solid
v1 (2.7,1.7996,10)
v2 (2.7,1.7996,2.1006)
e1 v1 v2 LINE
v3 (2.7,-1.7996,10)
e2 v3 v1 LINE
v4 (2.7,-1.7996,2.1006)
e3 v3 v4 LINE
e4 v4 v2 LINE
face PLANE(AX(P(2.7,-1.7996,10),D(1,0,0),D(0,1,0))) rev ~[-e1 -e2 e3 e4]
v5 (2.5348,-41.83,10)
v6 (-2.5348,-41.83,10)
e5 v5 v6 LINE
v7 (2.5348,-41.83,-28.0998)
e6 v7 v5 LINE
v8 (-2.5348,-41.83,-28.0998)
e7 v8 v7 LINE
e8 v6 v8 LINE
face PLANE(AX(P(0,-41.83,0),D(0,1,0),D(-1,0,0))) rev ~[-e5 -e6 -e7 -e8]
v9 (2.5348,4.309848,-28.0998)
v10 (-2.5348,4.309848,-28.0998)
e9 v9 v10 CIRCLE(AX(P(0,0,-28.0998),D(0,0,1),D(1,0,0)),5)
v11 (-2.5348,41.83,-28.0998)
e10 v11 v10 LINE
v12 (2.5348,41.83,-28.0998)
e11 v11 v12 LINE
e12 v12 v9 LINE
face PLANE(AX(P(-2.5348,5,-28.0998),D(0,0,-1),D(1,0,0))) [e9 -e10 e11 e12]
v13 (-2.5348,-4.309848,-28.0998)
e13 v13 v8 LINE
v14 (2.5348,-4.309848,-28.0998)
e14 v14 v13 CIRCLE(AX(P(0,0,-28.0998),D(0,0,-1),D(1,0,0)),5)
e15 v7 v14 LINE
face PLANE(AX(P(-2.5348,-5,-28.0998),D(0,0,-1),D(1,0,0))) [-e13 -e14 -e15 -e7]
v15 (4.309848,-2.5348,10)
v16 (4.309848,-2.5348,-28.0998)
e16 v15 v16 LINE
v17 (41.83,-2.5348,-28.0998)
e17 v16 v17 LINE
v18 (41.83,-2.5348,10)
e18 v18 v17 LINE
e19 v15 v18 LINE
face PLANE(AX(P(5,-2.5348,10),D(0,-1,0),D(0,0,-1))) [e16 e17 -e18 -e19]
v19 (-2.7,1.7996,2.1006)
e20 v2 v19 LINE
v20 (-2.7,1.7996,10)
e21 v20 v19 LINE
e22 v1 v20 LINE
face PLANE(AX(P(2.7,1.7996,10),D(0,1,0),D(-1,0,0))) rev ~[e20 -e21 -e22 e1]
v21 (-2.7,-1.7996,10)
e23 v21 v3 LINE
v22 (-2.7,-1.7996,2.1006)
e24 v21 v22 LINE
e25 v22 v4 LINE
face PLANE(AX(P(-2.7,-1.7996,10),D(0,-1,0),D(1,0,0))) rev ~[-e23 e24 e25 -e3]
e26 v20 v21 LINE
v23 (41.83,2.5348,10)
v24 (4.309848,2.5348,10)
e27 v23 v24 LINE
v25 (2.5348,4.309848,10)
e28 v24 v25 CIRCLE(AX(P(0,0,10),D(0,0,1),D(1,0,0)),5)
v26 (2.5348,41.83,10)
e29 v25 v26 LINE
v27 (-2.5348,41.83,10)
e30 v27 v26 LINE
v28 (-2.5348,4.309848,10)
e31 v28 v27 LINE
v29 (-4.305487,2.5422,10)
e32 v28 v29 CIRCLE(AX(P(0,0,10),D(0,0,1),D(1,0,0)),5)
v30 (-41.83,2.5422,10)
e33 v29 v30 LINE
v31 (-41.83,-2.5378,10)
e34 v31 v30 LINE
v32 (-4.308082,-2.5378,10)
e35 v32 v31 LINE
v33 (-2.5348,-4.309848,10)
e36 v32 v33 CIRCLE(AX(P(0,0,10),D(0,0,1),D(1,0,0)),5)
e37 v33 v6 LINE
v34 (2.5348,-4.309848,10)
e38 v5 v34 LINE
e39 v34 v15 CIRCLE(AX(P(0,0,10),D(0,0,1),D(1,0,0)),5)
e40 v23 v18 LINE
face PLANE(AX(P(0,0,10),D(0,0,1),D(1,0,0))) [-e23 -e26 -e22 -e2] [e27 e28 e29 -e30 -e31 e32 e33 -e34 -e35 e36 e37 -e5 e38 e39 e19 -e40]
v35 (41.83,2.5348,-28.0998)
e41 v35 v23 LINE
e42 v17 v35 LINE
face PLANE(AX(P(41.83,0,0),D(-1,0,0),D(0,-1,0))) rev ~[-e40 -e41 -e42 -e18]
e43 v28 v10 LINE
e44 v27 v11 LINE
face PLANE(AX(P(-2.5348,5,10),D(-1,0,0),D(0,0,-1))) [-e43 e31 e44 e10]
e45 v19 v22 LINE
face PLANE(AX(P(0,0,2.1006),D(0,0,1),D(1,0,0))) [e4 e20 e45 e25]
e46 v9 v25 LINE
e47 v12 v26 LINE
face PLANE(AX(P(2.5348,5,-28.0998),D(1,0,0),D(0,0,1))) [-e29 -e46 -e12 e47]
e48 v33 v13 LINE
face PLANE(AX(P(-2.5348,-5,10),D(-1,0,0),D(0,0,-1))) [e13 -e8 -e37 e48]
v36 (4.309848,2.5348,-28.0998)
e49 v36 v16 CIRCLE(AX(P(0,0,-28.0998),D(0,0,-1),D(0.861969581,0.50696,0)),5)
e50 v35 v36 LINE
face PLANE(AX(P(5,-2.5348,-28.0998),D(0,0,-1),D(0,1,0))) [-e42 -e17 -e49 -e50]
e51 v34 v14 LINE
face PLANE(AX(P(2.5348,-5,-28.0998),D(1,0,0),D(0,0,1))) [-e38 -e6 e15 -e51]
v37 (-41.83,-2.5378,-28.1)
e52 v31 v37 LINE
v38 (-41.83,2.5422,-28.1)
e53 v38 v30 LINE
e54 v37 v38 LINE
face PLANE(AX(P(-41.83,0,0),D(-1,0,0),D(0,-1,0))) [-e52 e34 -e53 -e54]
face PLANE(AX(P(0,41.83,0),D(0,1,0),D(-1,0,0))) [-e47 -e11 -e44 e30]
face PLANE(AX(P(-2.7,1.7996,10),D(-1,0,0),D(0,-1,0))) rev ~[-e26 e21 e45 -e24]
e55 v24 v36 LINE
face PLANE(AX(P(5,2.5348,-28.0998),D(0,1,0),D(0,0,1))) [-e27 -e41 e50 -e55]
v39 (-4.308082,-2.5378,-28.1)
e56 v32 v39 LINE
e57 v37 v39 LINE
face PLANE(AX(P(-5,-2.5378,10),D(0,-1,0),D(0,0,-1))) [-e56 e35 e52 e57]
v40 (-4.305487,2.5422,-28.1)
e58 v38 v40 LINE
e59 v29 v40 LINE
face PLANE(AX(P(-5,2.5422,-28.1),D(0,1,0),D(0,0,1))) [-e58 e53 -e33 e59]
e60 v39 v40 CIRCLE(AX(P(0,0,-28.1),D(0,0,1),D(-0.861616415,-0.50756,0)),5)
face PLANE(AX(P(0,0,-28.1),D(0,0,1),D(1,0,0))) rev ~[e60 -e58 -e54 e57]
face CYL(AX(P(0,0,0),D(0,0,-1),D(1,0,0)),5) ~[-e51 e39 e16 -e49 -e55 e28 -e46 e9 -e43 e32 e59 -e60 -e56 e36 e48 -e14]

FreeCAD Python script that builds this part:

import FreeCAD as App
import Part
import Sketcher

V = App.Vector
Q = App.Units.Quantity

doc = App.newDocument("Part")
body = doc.addObject("PartDesign::Body", "Body")

sketch1 = body.newObject("Sketcher::SketchObject", "Sketch")
sketch1.AttachmentSupport = (doc.getObject("XY_Plane"), [""])
sketch1.MapMode = "FlatFace"
sketch1.addGeometry(Part.Circle(V(0, 0, 0), V(0, 0, 1), 5), False)
sketch1.addConstraint(Sketcher.Constraint("Coincident", 0, 3, -1, 1))
sketch1.addConstraint(Sketcher.Constraint("Diameter", 0, Q("0.3937 in")))
pad1 = body.newObject("PartDesign::Pad", "Pad")
pad1.Profile = sketch1
pad1.Type = "TwoLengths"
pad1.Length = Q("0.3937008 in")
pad1.Length2 = Q("1.1062992 in")

sketch2 = body.newObject("Sketcher::SketchObject", "Sketch001")
sketch2.AttachmentSupport = (doc.getObject("XY_Plane"), [""])
sketch2.MapMode = "FlatFace"
sketch2.AttachmentOffset = App.Placement(V(0, 0, 0.3937008 * 25.4), App.Rotation())
sketch2.addGeometry(Part.LineSegment(V(-2.7, 1.8, 0), V(-2.7, -1.8, 0)), False)
sketch2.addGeometry(Part.LineSegment(V(-2.7, -1.8, 0), V(2.7, -1.8, 0)), False)
sketch2.addGeometry(Part.LineSegment(V(2.7, -1.8, 0), V(2.7, 1.8, 0)), False)
sketch2.addGeometry(Part.LineSegment(V(2.7, 1.8, 0), V(-2.7, 1.8, 0)), False)
sketch2.addConstraint(Sketcher.Constraint("Coincident", 0, 2, 1, 1))
sketch2.addConstraint(Sketcher.Constraint("Coincident", 1, 2, 2, 1))
sketch2.addConstraint(Sketcher.Constraint("Coincident", 2, 2, 3, 1))
sketch2.addConstraint(Sketcher.Constraint("Coincident", 3, 2, 0, 1))
sketch2.addConstraint(Sketcher.Constraint("Vertical", 0))
sketch2.addConstraint(Sketcher.Constraint("Horizontal", 1))
sketch2.addConstraint(Sketcher.Constraint("Vertical", 2))
sketch2.addConstraint(Sketcher.Constraint("Horizontal", 3))
sketch2.addConstraint(Sketcher.Constraint("Symmetric", 0, 2, 2, 2, -1, 1))
sketch2.addConstraint(Sketcher.Constraint("DistanceX", 1, 1, 1, 2, Q("0.2126 in")))
sketch2.addConstraint(Sketcher.Constraint("DistanceY", 0, 2, 0, 1, Q("0.1417 in")))
pocket1 = body.newObject("PartDesign::Pocket", "Pocket")
pocket1.Profile = sketch2
pocket1.Length = Q("0.311 in")

sketch3 = body.newObject("Sketcher::SketchObject", "Sketch002")
sketch3.AttachmentSupport = (doc.getObject("XZ_Plane"), [""])
sketch3.MapMode = "FlatFace"
sketch3.AttachmentOffset = App.Placement(V(0, 0, -5), App.Rotation())
sketch3.addGeometry(Part.LineSegment(V(-3, -28, 0), V(-3, 10, 0)), False)
sketch3.addGeometry(Part.LineSegment(V(-3, 10, 0), V(3, 10, 0)), False)
sketch3.addGeometry(Part.LineSegment(V(3, 10, 0), V(3, -28, 0)), False)
sketch3.addGeometry(Part.LineSegment(V(3, -28, 0), V(-3, -28, 0)), False)
sketch3.addConstraint(Sketcher.Constraint("Coincident", 0, 2, 1, 1))
sketch3.addConstraint(Sketcher.Constraint("Coincident", 1, 2, 2, 1))
sketch3.addConstraint(Sketcher.Constraint("Coincident", 2, 2, 3, 1))
sketch3.addConstraint(Sketcher.Constraint("Coincident", 3, 2, 0, 1))
sketch3.addConstraint(Sketcher.Constraint("Vertical", 0))
sketch3.addConstraint(Sketcher.Constraint("Horizontal", 1))
sketch3.addConstraint(Sketcher.Constraint("Vertical", 2))
sketch3.addConstraint(Sketcher.Constraint("Horizontal", 3))
sketch3.addConstraint(Sketcher.Constraint("DistanceY", 0, 1, 0, 2, Q("1.5 in")))
sketch3.addConstraint(Sketcher.Constraint("DistanceX", 1, 1, 1, 2, Q("0.1996 in")))
sketch3.addConstraint(Sketcher.Constraint("DistanceX", 0, 2, -1, 1, Q("0.0998 in")))
sketch3.addConstraint(Sketcher.Constraint("DistanceY", -1, 1, 0, 2, Q("0.3937 in")))
pad2 = body.newObject("PartDesign::Pad", "Pad001")
pad2.Profile = sketch3
pad2.Type = "TwoLengths"
pad2.Length = Q("1.45 in")
pad2.Length2 = Q("0.05 in")
pad2.Reversed = True

sketch4 = body.newObject("Sketcher::SketchObject", "Sketch003")
sketch4.AttachmentSupport = (doc.getObject("YZ_Plane"), [""])
sketch4.MapMode = "FlatFace"
sketch4.AttachmentOffset = App.Placement(V(0, 0, 5), App.Rotation())
sketch4.addGeometry(Part.LineSegment(V(-3, 10, 0), V(3, 10, 0)), False)
sketch4.addGeometry(Part.LineSegment(V(3, 10, 0), V(3, -28, 0)), False)
sketch4.addGeometry(Part.LineSegment(V(3, -28, 0), V(-3, -28, 0)), False)
sketch4.addGeometry(Part.LineSegment(V(-3, -28, 0), V(-3, 10, 0)), False)
sketch4.addConstraint(Sketcher.Constraint("Coincident", 0, 2, 1, 1))
sketch4.addConstraint(Sketcher.Constraint("Coincident", 1, 2, 2, 1))
sketch4.addConstraint(Sketcher.Constraint("Coincident", 2, 2, 3, 1))
sketch4.addConstraint(Sketcher.Constraint("Coincident", 3, 2, 0, 1))
sketch4.addConstraint(Sketcher.Constraint("Horizontal", 0))
sketch4.addConstraint(Sketcher.Constraint("Vertical", 1))
sketch4.addConstraint(Sketcher.Constraint("Horizontal", 2))
sketch4.addConstraint(Sketcher.Constraint("Vertical", 3))
sketch4.addConstraint(Sketcher.Constraint("DistanceY", 1, 2, 1, 1, Q("1.5 in")))
sketch4.addConstraint(Sketcher.Constraint("DistanceX", 0, 1, 0, 2, Q("0.1996 in")))
sketch4.addConstraint(Sketcher.Constraint("DistanceX", -1, 1, 0, 2, Q("0.0998 in")))
sketch4.addConstraint(Sketcher.Constraint("DistanceY", -1, 1, 0, 2, Q("0.3937 in")))
pad3 = body.newObject("PartDesign::Pad", "Pad002")
pad3.Profile = sketch4
pad3.Type = "TwoLengths"
pad3.Length = Q("0.05 in")
pad3.Length2 = Q("1.45 in")
pad3.Reversed = True

sketch5 = body.newObject("Sketcher::SketchObject", "Sketch004")
sketch5.AttachmentSupport = (doc.getObject("YZ_Plane"), [""])
sketch5.MapMode = "FlatFace"
sketch5.AttachmentOffset = App.Placement(V(0, 0, -5), App.Rotation())
sketch5.addGeometry(Part.LineSegment(V(-3, -28, 0), V(-3, 10, 0)), False)
sketch5.addGeometry(Part.LineSegment(V(-3, 10, 0), V(3, 10, 0)), False)
sketch5.addGeometry(Part.LineSegment(V(3, 10, 0), V(3, -28, 0)), False)
sketch5.addGeometry(Part.LineSegment(V(3, -28, 0), V(-3, -28, 0)), False)
sketch5.addConstraint(Sketcher.Constraint("Coincident", 0, 2, 1, 1))
sketch5.addConstraint(Sketcher.Constraint("Coincident", 1, 2, 2, 1))
sketch5.addConstraint(Sketcher.Constraint("Coincident", 2, 2, 3, 1))
sketch5.addConstraint(Sketcher.Constraint("Coincident", 3, 2, 0, 1))
sketch5.addConstraint(Sketcher.Constraint("Vertical", 0))
sketch5.addConstraint(Sketcher.Constraint("Horizontal", 1))
sketch5.addConstraint(Sketcher.Constraint("Vertical", 2))
sketch5.addConstraint(Sketcher.Constraint("Horizontal", 3))
sketch5.addConstraint(Sketcher.Constraint("DistanceX", 1, 1, 1, 2, Q("0.2 in")))
sketch5.addConstraint(Sketcher.Constraint("DistanceY", 0, 1, 0, 2, Q("1.5 in")))
sketch5.addConstraint(Sketcher.Constraint("DistanceY", -1, 1, 0, 2, Q("0.3937 in")))
sketch5.addConstraint(Sketcher.Constraint("DistanceX", 0, 2, -1, 1, Q("2.5378 mm")))
pad4 = body.newObject("PartDesign::Pad", "Pad003")
pad4.Profile = sketch5
pad4.Type = "TwoLengths"
pad4.Length = Q("1.45 in")
pad4.Length2 = Q("0.05 in")
pad4.Reversed = True

sketch6 = body.newObject("Sketcher::SketchObject", "Sketch005")
sketch6.AttachmentSupport = (doc.getObject("XZ_Plane"), [""])
sketch6.MapMode = "FlatFace"
sketch6.AttachmentOffset = App.Placement(V(0, 0, 5), App.Rotation())
sketch6.addGeometry(Part.LineSegment(V(-3, 10, 0), V(3, 10, 0)), False)
sketch6.addGeometry(Part.LineSegment(V(3, 10, 0), V(3, -28, 0)), False)
sketch6.addGeometry(Part.LineSegment(V(3, -28, 0), V(-3, -28, 0)), False)
sketch6.addGeometry(Part.LineSegment(V(-3, -28, 0), V(-3, 10, 0)), False)
sketch6.addConstraint(Sketcher.Constraint("Coincident", 0, 2, 1, 1))
sketch6.addConstraint(Sketcher.Constraint("Coincident", 1, 2, 2, 1))
sketch6.addConstraint(Sketcher.Constraint("Coincident", 2, 2, 3, 1))
sketch6.addConstraint(Sketcher.Constraint("Coincident", 3, 2, 0, 1))
sketch6.addConstraint(Sketcher.Constraint("Horizontal", 0))
sketch6.addConstraint(Sketcher.Constraint("Vertical", 1))
sketch6.addConstraint(Sketcher.Constraint("Horizontal", 2))
sketch6.addConstraint(Sketcher.Constraint("Vertical", 3))
sketch6.addConstraint(Sketcher.Constraint("DistanceY", 1, 2, 1, 1, Q("1.5 in")))
sketch6.addConstraint(Sketcher.Constraint("DistanceX", 0, 1, 0, 2, Q("0.1996 in")))
sketch6.addConstraint(Sketcher.Constraint("DistanceX", -1, 1, 0, 2, Q("0.0998 in")))
sketch6.addConstraint(Sketcher.Constraint("DistanceY", -1, 1, 0, 2, Q("0.3937 in")))
pad5 = body.newObject("PartDesign::Pad", "Pad004")
pad5.Profile = sketch6
pad5.Type = "TwoLengths"
pad5.Length = Q("0.05 in")
pad5.Length2 = Q("1.45 in")
pad5.Reversed = True

doc.recompute()
